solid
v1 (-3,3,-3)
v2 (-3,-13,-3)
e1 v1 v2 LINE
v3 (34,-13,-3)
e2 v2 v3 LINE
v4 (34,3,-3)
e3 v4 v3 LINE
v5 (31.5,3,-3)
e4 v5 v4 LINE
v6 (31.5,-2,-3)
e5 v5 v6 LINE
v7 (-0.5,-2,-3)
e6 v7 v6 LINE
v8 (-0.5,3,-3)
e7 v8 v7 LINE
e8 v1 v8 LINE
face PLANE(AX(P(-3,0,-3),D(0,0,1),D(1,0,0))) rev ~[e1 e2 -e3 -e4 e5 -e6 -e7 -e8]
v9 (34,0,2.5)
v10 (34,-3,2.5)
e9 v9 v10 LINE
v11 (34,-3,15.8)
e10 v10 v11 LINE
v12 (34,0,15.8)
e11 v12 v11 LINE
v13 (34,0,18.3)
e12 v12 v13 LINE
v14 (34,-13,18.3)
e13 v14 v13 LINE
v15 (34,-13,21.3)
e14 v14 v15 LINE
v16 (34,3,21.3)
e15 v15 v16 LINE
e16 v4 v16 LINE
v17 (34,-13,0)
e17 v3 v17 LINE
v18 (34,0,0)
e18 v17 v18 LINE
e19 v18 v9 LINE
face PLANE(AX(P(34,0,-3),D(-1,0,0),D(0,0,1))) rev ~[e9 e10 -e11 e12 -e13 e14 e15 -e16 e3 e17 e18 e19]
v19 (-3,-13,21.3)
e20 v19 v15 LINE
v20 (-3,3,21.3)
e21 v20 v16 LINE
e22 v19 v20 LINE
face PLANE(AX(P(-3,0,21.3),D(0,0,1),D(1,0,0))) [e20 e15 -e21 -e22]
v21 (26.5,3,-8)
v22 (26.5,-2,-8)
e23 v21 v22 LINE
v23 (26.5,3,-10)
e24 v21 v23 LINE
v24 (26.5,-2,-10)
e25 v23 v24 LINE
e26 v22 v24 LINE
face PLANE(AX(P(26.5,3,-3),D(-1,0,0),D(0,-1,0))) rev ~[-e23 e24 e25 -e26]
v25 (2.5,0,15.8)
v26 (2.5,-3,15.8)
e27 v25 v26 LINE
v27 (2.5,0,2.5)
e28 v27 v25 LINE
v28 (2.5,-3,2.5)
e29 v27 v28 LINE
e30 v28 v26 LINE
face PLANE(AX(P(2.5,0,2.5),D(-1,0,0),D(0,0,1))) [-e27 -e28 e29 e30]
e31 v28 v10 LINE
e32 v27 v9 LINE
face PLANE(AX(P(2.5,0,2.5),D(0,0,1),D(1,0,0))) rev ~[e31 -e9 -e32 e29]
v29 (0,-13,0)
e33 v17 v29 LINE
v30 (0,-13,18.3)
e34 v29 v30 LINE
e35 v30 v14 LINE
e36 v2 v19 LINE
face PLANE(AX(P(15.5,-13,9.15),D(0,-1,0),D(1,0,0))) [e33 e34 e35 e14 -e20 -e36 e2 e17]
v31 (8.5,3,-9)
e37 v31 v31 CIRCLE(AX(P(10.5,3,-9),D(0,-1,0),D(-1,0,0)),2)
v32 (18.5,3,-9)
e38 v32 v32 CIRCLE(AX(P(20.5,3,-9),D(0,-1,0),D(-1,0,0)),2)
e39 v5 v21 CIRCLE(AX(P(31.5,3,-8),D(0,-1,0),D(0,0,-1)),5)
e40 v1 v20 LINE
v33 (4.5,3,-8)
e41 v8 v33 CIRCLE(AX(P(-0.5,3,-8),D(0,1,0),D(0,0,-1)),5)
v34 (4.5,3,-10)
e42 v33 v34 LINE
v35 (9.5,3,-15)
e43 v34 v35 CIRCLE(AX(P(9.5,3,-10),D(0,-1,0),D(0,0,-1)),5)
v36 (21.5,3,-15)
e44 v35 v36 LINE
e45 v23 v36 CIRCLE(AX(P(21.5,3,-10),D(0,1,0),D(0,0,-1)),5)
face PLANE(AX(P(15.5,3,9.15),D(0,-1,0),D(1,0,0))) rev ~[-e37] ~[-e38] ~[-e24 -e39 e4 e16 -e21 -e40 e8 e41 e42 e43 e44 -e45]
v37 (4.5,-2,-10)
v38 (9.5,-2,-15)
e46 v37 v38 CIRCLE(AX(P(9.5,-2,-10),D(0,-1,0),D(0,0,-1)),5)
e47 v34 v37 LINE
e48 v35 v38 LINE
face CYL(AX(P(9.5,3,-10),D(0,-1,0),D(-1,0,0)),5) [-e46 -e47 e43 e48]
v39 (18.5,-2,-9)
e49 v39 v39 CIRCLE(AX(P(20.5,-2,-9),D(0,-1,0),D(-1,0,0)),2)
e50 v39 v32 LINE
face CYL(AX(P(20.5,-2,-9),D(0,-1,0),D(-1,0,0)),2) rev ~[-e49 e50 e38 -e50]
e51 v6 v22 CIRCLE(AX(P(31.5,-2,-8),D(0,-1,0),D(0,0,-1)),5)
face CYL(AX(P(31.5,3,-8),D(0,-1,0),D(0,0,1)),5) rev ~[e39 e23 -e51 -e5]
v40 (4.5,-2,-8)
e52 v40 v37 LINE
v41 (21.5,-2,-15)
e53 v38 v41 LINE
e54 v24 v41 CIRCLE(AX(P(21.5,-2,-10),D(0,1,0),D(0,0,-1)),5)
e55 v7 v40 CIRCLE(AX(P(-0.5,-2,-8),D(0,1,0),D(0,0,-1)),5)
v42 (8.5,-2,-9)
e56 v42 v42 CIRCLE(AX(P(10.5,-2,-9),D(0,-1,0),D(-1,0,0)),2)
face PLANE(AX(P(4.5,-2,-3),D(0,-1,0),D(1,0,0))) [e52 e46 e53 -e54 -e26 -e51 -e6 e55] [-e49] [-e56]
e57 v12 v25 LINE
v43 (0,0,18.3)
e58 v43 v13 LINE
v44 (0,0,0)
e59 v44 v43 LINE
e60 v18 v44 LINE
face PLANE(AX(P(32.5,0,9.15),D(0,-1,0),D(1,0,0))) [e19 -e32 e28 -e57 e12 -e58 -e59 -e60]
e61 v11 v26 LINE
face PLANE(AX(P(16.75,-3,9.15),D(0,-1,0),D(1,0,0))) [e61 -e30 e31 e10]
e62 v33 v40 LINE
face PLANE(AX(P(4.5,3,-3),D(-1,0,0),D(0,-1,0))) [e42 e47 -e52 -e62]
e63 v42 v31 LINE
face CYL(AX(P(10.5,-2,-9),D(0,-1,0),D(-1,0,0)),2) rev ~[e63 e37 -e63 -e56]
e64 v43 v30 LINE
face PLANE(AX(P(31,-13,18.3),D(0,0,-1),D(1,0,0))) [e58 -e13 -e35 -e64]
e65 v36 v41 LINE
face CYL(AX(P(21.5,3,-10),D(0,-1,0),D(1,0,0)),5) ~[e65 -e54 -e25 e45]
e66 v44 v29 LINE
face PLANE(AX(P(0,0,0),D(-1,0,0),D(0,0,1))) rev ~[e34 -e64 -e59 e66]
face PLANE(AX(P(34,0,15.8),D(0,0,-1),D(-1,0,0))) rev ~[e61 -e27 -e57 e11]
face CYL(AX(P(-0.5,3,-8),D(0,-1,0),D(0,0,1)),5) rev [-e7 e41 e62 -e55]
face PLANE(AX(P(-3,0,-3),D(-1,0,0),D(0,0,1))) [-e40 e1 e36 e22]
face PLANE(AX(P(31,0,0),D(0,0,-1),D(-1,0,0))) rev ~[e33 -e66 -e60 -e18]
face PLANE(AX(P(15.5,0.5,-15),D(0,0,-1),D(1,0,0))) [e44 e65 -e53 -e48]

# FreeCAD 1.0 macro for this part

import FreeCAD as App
import Part
import Sketcher

V = App.Vector
Q = App.Units.Quantity


def edges_at(feature, points):
    """Names of the edges that pass closest to the given points."""
    edges = feature.Shape.Edges
    near = lambda p: min(range(len(edges)), key=lambda i: edges[i].distToShape(Part.Vertex(*p))[0])
    return sorted({f"Edge{near(p) + 1}" for p in points})

doc = App.newDocument("Part")
body = doc.addObject("PartDesign::Body", "Body")

sketch1 = body.newObject("Sketcher::SketchObject", "Sketch")
sketch1.AttachmentSupport = (doc.getObject("XZ_Plane"), [""])
sketch1.MapMode = "FlatFace"
sketch1.addGeometry([
    Part.LineSegment(V(-3, 21, 0), V(-3, -3, 0)),
    Part.LineSegment(V(-3, -3, 0), V(34, -3, 0)),
    Part.LineSegment(V(34, -3, 0), V(34, 21, 0)),
    Part.LineSegment(V(34, 21, 0), V(-3, 21, 0)),
], False)
sketch1.addConstraint([
    Sketcher.Constraint("Coincident", 0, 2, 1, 1),
    Sketcher.Constraint("Coincident", 1, 2, 2, 1),
    Sketcher.Constraint("Coincident", 2, 2, 3, 1),
    Sketcher.Constraint("Coincident", 3, 2, 0, 1),
    Sketcher.Constraint("Vertical", 0),
    Sketcher.Constraint("Horizontal", 1),
    Sketcher.Constraint("Vertical", 2),
    Sketcher.Constraint("Horizontal", 3),
    Sketcher.Constraint("DistanceX", 1, 1, 1, 2, Q("37 mm")),
    Sketcher.Constraint("DistanceY", 0, 2, 0, 1, Q("24.3 mm")),
    Sketcher.Constraint("DistanceX", 0, 2, -1, 1, Q("3 mm")),
    Sketcher.Constraint("DistanceY", 0, 2, -1, 1, Q("3 mm")),
])
pad1 = body.newObject("PartDesign::Pad", "Pad")
pad1.Profile = sketch1
pad1.Length = 3
pad1.Reversed = True

sketch2 = body.newObject("Sketcher::SketchObject", "Sketch001")
sketch2.AttachmentSupport = (doc.getObject("XZ_Plane"), [""])
sketch2.MapMode = "FlatFace"
sketch2.addGeometry([
    Part.LineSegment(V(-3, 21, 0), V(-3, -3, 0)),
    Part.LineSegment(V(-3, -3, 0), V(34, -3, 0)),
    Part.LineSegment(V(34, -3, 0), V(34, 21, 0)),
    Part.LineSegment(V(34, 21, 0), V(-3, 21, 0)),
    Part.LineSegment(V(31, 18, 0), V(31, 0, 0)),
    Part.LineSegment(V(31, 0, 0), V(0, 0, 0)),
    Part.LineSegment(V(0, 0, 0), V(0, 18, 0)),
    Part.LineSegment(V(0, 18, 0), V(31, 18, 0)),
], False)
sketch2.addConstraint([
    Sketcher.Constraint("Coincident", 0, 2, 1, 1),
    Sketcher.Constraint("Coincident", 1, 2, 2, 1),
    Sketcher.Constraint("Coincident", 2, 2, 3, 1),
    Sketcher.Constraint("Coincident", 3, 2, 0, 1),
    Sketcher.Constraint("Coincident", 4, 2, 5, 1),
    Sketcher.Constraint("Coincident", 5, 2, 6, 1),
    Sketcher.Constraint("Coincident", 6, 2, 7, 1),
    Sketcher.Constraint("Coincident", 7, 2, 4, 1),
    Sketcher.Constraint("Vertical", 0),
    Sketcher.Constraint("Horizontal", 1),
    Sketcher.Constraint("Vertical", 2),
    Sketcher.Constraint("Horizontal", 3),
    Sketcher.Constraint("Vertical", 4),
    Sketcher.Constraint("Horizontal", 5),
    Sketcher.Constraint("Vertical", 6),
    Sketcher.Constraint("Horizontal", 7),
    Sketcher.Constraint("Coincident", 5, 2, -1, 1),
    Sketcher.Constraint("DistanceX", 1, 1, 1, 2, Q("37 mm")),
    Sketcher.Constraint("DistanceX", 5, 2, 5, 1, Q("31 mm")),
    Sketcher.Constraint("DistanceY", 0, 2, 0, 1, Q("24.3 mm")),
    Sketcher.Constraint("DistanceY", 4, 2, 4, 1, Q("18.3 mm")),
    Sketcher.Constraint("DistanceX", 0, 2, -1, 1, Q("3 mm")),
    Sketcher.Constraint("DistanceY", 0, 2, -1, 1, Q("3 mm")),
])
pad2 = body.newObject("PartDesign::Pad", "Pad001")
pad2.Profile = sketch2
pad2.Length = 13

sketch3 = body.newObject("Sketcher::SketchObject", "Sketch002")
sketch3.AttachmentSupport = (doc.getObject("XZ_Plane"), [""])
sketch3.MapMode = "FlatFace"
sketch3.AttachmentOffset = App.Placement(V(0, 0, 13), App.Rotation())
sketch3.addGeometry([
    Part.LineSegment(V(31, 18.3, 0), V(31, 0, 0)),
    Part.LineSegment(V(31, 0, 0), V(34, 0, 0)),
    Part.LineSegment(V(34, 0, 0), V(34, 18.3, 0)),
    Part.LineSegment(V(34, 18.3, 0), V(31, 18.3, 0)),
], False)
sketch3.addConstraint([
    Sketcher.Constraint("Coincident", 0, 2, 1, 1),
    Sketcher.Constraint("Coincident", 1, 2, 2, 1),
    Sketcher.Constraint("Coincident", 2, 2, 3, 1),
    Sketcher.Constraint("Coincident", 3, 2, 0, 1),
    Sketcher.Constraint("Vertical", 0),
    Sketcher.Constraint("Horizontal", 1),
    Sketcher.Constraint("Vertical", 2),
    Sketcher.Constraint("Horizontal", 3),
    Sketcher.Constraint("PointOnObject", 0, 2, -1),
    Sketcher.Constraint("DistanceX", 1, 1, 1, 2, Q("3 mm")),
    Sketcher.Constraint("DistanceY", 0, 2, 0, 1, Q("18.3 mm")),
    Sketcher.Constraint("DistanceX", -1, 1, 0, 2, Q("31 mm")),
])
pocket1 = body.newObject("PartDesign::Pocket", "Pocket")
pocket1.Profile = sketch3
pocket1.Length = 13

sketch4 = body.newObject("Sketcher::SketchObject", "Sketch003")
sketch4.AttachmentSupport = (doc.getObject("XZ_Plane"), [""])
sketch4.MapMode = "FlatFace"
sketch4.addGeometry([
    Part.LineSegment(V(2, 16, 0), V(2, 2, 0)),
    Part.LineSegment(V(2, 2, 0), V(34, 2, 0)),
    Part.LineSegment(V(34, 2, 0), V(34, 16, 0)),
    Part.LineSegment(V(34, 16, 0), V(2, 16, 0)),
], False)
sketch4.addConstraint([
    Sketcher.Constraint("Coincident", 0, 2, 1, 1),
    Sketcher.Constraint("Coincident", 1, 2, 2, 1),
    Sketcher.Constraint("Coincident", 2, 2, 3, 1),
    Sketcher.Constraint("Coincident", 3, 2, 0, 1),
    Sketcher.Constraint("Vertical", 0),
    Sketcher.Constraint("Horizontal", 1),
    Sketcher.Constraint("Vertical", 2),
    Sketcher.Constraint("Horizontal", 3),
    Sketcher.Constraint("DistanceX", 1, 1, 1, 2, Q("31.5 mm")),
    Sketcher.Constraint("DistanceY", 0, 2, 0, 1, Q("13.3 mm")),
    Sketcher.Constraint("DistanceX", -1, 1, 1, 2, Q("34 mm")),
    Sketcher.Constraint("DistanceY", -1, 1, 0, 2, Q("2.5 mm")),
])
pad3 = body.newObject("PartDesign::Pad", "Pad002")
pad3.Profile = sketch4
pad3.Length = 3

sketch5 = body.newObject("Sketcher::SketchObject", "Sketch004")
sketch5.AttachmentSupport = (doc.getObject("XY_Plane"), [""])
sketch5.MapMode = "FlatFace"
sketch5.AttachmentOffset = App.Placement(V(0, 0, -3), App.Rotation())
sketch5.addGeometry([
    Part.LineSegment(V(4, -2, 0), V(4, 3, 0)),
    Part.LineSegment(V(4, 3, 0), V(26, 3, 0)),
    Part.LineSegment(V(26, 3, 0), V(26, -2, 0)),
    Part.LineSegment(V(26, -2, 0), V(4, -2, 0)),
], False)
sketch5.addConstraint([
    Sketcher.Constraint("Coincident", 0, 2, 1, 1),
    Sketcher.Constraint("Coincident", 1, 2, 2, 1),
    Sketcher.Constraint("Coincident", 2, 2, 3, 1),
    Sketcher.Constraint("Coincident", 3, 2, 0, 1),
    Sketcher.Constraint("Vertical", 0),
    Sketcher.Constraint("Horizontal", 1),
    Sketcher.Constraint("Vertical", 2),
    Sketcher.Constraint("Horizontal", 3),
    Sketcher.Constraint("DistanceX", 1, 1, 1, 2, Q("22 mm")),
    Sketcher.Constraint("DistanceY", 0, 1, 0, 2, Q("5 mm")),
    Sketcher.Constraint("DistanceY", -1, 1, 0, 2, Q("3 mm")),
    Sketcher.Constraint("DistanceX", -1, 1, 0, 2, Q("4.5 mm")),
])
pad4 = body.newObject("PartDesign::Pad", "Pad003")
pad4.Profile = sketch5
pad4.Length = 12
pad4.Reversed = True
doc.recompute()

fillet = body.newObject("PartDesign::Fillet", "Fillet")
fillet.Base = (pad4, edges_at(pad4, [
    (4.5, 0.5, -15),
    (4.5, 0.5, -3),
    (26.5, 0.5, -15),
    (26.5, 0.5, -3),
]))
fillet.Radius = 5

sketch6 = body.newObject("Sketcher::SketchObject", "Sketch005")
sketch6.AttachmentSupport = (doc.getObject("XZ_Plane"), [""])
sketch6.MapMode = "FlatFace"
sketch6.AttachmentOffset = App.Placement(V(0, 0, 2), App.Rotation())
sketch6.addGeometry([
    Part.Circle(V(10.5, -9, 0), V(0, 0, 1), 2),
    Part.Circle(V(20.5, -9, 0), V(0, 0, 1), 2),
], False)
sketch6.addConstraint([
    Sketcher.Constraint("Equal", 0, 1),
    Sketcher.Constraint("Horizontal", 0, 3, 1, 3),
    Sketcher.Constraint("Diameter", 0, Q("4 mm")),
    Sketcher.Constraint("DistanceY", 0, 3, -1, 1, Q("9 mm")),
    Sketcher.Constraint("DistanceX", 0, 3, 1, 3, Q("10 mm")),
    Sketcher.Constraint("DistanceX", -1, 1, 0, 3, Q("10.5 mm")),
])
pocket2 = body.newObject("PartDesign::Pocket", "Pocket001")
pocket2.Profile = sketch6
pocket2.Length = 25

doc.recompute()
